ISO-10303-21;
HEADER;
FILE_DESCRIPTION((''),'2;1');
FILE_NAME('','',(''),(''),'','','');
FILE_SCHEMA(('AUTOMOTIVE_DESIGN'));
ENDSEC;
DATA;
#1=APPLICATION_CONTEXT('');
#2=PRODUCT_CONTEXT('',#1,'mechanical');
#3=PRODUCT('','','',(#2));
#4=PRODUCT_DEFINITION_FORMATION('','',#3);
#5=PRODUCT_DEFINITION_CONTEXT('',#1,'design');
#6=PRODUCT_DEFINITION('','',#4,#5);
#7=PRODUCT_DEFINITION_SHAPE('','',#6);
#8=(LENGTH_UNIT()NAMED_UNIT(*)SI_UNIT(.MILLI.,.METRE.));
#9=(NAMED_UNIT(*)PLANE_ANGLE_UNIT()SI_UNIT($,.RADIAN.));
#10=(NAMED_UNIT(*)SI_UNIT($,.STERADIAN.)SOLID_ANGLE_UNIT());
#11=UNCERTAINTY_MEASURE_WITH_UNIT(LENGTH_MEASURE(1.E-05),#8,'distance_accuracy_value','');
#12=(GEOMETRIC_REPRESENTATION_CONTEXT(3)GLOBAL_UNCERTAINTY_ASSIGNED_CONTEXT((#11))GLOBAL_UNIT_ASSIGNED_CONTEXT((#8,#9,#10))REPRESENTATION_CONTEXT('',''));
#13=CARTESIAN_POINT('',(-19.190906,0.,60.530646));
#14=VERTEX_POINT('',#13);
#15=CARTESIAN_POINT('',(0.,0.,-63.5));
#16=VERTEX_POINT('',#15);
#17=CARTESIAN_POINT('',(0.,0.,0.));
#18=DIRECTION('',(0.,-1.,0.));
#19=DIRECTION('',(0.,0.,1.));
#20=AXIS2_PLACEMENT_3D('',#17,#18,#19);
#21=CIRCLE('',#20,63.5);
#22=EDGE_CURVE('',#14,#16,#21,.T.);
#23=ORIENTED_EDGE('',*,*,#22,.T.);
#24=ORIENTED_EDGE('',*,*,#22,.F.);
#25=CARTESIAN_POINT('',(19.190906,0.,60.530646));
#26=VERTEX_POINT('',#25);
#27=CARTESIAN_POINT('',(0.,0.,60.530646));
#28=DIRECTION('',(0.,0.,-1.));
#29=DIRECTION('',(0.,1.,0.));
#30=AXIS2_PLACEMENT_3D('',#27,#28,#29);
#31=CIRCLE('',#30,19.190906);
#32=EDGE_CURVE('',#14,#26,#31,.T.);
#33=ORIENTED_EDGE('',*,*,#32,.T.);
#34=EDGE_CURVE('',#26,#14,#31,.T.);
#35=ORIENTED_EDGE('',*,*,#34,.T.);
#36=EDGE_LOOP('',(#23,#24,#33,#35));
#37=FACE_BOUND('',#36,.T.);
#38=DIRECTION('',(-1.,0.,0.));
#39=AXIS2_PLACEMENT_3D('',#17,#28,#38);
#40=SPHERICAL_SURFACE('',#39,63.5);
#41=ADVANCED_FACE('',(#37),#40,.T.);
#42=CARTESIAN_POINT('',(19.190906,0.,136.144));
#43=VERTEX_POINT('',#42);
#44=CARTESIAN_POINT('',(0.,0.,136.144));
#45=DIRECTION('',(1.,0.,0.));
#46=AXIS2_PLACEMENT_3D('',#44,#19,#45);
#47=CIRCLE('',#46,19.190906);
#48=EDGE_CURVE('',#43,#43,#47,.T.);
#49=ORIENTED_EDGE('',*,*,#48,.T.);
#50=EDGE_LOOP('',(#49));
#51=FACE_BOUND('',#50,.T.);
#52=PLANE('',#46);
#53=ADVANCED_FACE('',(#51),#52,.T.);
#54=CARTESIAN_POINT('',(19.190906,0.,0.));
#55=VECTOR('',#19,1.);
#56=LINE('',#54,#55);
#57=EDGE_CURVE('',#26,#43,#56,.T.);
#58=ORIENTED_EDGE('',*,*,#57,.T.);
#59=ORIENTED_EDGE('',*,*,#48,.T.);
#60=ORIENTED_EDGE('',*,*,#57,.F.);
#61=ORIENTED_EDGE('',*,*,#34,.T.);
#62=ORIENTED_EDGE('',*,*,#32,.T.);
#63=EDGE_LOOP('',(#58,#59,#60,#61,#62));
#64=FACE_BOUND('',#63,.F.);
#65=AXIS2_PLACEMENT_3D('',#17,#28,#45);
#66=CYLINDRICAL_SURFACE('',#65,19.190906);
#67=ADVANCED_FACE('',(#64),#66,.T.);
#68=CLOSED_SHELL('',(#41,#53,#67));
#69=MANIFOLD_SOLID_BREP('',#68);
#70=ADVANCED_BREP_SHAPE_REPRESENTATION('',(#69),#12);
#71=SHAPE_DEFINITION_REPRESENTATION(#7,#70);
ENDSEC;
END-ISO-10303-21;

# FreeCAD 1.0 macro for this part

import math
import FreeCAD as App
import Part
import Sketcher
from FreeCAD import Vector
Q = App.Units.Quantity

doc = App.newDocument("Part")
body = doc.addObject("PartDesign::Body", "Body")

sketch1 = body.newObject("Sketcher::SketchObject", "Sketch")
sketch1.AttachmentSupport = (doc.getObject("XZ_Plane"), [""])
sketch1.MapMode = "FlatFace"
sketch1.addGeometry(Part.ArcOfCircle(Part.Circle(Vector(0, 0, 0), Vector(0, 0, 1), 63.5), math.radians(90), math.radians(270)), False)
sketch1.addGeometry(Part.LineSegment(Vector(0, -63.5, 0), Vector(0, 63.5, 0)), False)
sketch1.addConstraint(Sketcher.Constraint("Coincident", 0, 1, 1, 2))
sketch1.addConstraint(Sketcher.Constraint("Coincident", 1, 1, 0, 2))
sketch1.addConstraint(Sketcher.Constraint("Vertical", 1))
sketch1.addConstraint(Sketcher.Constraint("Coincident", 0, 3, -1, 1))
sketch1.addConstraint(Sketcher.Constraint("PointOnObject", 0, 1, -2))
sketch1.addConstraint(Sketcher.Constraint("Radius", 0, Q("2.5 in")))
revolution = body.newObject("PartDesign::Revolution", "Revolution")
revolution.Profile = sketch1
revolution.ReferenceAxis = (sketch1, ["V_Axis"])
revolution.Angle = 360

sketch2 = body.newObject("Sketcher::SketchObject", "Sketch001")
sketch2.AttachmentSupport = (doc.getObject("XY_Plane"), [""])
sketch2.MapMode = "FlatFace"
sketch2.addGeometry(Part.Circle(Vector(0, 0, 0), Vector(0, 0, 1), 19.190906), False)
sketch2.addConstraint(Sketcher.Constraint("Coincident", 0, 3, -1, 1))
sketch2.addConstraint(Sketcher.Constraint("Diameter", 0, 38.381812))
pad1 = body.newObject("PartDesign::Pad", "Pad")
pad1.Profile = sketch2
pad1.Length = Q("5.36 in")

doc.recompute()
